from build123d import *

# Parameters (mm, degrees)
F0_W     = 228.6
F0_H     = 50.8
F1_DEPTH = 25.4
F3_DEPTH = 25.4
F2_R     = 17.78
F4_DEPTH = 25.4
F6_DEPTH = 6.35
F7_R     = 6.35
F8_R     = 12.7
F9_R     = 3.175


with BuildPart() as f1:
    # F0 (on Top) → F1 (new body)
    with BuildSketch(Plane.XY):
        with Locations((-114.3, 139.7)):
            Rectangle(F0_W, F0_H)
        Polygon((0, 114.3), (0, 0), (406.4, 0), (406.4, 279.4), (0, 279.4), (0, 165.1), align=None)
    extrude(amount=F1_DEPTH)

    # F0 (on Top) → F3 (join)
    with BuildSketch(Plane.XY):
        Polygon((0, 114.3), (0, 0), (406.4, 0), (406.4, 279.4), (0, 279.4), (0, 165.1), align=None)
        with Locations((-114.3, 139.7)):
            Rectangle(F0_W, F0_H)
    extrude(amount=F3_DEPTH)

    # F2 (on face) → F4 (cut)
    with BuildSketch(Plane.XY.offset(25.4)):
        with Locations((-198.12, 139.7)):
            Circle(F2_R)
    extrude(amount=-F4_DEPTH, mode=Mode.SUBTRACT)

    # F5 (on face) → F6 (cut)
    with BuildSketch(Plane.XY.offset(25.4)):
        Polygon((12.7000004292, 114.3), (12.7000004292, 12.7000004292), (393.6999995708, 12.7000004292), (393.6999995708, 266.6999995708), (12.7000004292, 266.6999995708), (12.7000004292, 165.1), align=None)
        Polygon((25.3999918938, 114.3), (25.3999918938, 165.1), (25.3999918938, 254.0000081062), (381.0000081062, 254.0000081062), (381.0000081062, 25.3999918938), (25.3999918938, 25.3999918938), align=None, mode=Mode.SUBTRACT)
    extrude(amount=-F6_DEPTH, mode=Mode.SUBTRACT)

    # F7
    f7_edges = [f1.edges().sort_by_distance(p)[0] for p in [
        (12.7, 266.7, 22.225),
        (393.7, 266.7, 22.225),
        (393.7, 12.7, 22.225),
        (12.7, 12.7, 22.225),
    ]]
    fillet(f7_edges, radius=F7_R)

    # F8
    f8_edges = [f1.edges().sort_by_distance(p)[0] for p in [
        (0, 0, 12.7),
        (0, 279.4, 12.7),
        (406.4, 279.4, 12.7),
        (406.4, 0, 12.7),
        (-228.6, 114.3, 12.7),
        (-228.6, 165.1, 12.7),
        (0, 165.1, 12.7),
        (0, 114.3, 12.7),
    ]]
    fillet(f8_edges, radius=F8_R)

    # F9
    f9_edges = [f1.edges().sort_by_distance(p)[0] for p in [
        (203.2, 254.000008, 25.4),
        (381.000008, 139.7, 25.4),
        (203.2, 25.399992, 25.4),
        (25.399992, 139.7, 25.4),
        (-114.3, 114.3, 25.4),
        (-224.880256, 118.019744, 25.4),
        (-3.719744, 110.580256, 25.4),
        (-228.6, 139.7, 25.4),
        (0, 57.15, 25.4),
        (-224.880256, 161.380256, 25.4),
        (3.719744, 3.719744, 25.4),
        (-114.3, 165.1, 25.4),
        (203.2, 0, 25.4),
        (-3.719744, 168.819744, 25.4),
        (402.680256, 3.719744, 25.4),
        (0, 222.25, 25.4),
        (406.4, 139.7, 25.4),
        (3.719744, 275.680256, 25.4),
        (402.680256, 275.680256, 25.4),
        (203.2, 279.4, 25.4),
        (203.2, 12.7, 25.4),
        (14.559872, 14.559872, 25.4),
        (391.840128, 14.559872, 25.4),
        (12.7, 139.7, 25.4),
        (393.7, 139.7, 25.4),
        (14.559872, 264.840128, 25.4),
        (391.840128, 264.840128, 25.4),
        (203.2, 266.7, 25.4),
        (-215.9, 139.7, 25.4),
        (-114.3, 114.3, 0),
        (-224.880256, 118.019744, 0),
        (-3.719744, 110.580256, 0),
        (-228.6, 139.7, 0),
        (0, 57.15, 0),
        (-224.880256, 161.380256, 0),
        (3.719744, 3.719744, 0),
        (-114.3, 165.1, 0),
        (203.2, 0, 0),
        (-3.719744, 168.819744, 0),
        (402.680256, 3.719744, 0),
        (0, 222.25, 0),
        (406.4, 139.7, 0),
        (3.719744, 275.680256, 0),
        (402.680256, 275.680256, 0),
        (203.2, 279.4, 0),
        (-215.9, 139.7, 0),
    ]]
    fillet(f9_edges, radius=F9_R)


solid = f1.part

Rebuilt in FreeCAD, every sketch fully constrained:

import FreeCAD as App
import Part
import Sketcher
from FreeCAD import Vector
Q = App.Units.Quantity


def edges_at(feature, points):
    """Names of the edges that pass closest to the given points."""
    edges = feature.Shape.Edges
    near = lambda p: min(range(len(edges)), key=lambda i: edges[i].distToShape(Part.Vertex(*p))[0])
    return sorted({f"Edge{near(p) + 1}" for p in points})

doc = App.newDocument("Part")
body = doc.addObject("PartDesign::Body", "Body")

sketch1 = body.newObject("Sketcher::SketchObject", "Sketch")
sketch1.AttachmentSupport = (doc.getObject("XY_Plane"), [""])
sketch1.MapMode = "FlatFace"
sketch1.addGeometry([
    Part.LineSegment(Vector(-229, 165, 0), Vector(-229, 114, 0)),
    Part.LineSegment(Vector(-229, 114, 0), Vector(0, 114, 0)),
    Part.LineSegment(Vector(0, 114, 0), Vector(0, 0, 0)),
    Part.LineSegment(Vector(0, 0, 0), Vector(406, 0, 0)),
    Part.LineSegment(Vector(406, 0, 0), Vector(406, 279, 0)),
    Part.LineSegment(Vector(406, 279, 0), Vector(0, 279, 0)),
    Part.LineSegment(Vector(0, 279, 0), Vector(0, 165, 0)),
    Part.LineSegment(Vector(0, 165, 0), Vector(-229, 165, 0)),
], False)
sketch1.addConstraint([
    Sketcher.Constraint("Coincident", 0, 2, 1, 1),
    Sketcher.Constraint("Coincident", 1, 2, 2, 1),
    Sketcher.Constraint("Coincident", 2, 2, 3, 1),
    Sketcher.Constraint("Coincident", 3, 2, 4, 1),
    Sketcher.Constraint("Coincident", 4, 2, 5, 1),
    Sketcher.Constraint("Coincident", 5, 2, 6, 1),
    Sketcher.Constraint("Coincident", 6, 2, 7, 1),
    Sketcher.Constraint("Coincident", 7, 2, 0, 1),
    Sketcher.Constraint("Vertical", 0),
    Sketcher.Constraint("Horizontal", 1),
    Sketcher.Constraint("Vertical", 2),
    Sketcher.Constraint("Horizontal", 3),
    Sketcher.Constraint("Vertical", 4),
    Sketcher.Constraint("Horizontal", 5),
    Sketcher.Constraint("Vertical", 6),
    Sketcher.Constraint("Horizontal", 7),
    Sketcher.Constraint("Coincident", 2, 2, -1, 1),
    Sketcher.Constraint("PointOnObject", 5, 2, -2),
    Sketcher.Constraint("Equal", 2, 6),
    Sketcher.Constraint("DistanceX", 1, 1, 1, 2, Q("9 in")),
    Sketcher.Constraint("DistanceX", 3, 1, 3, 2, Q("16 in")),
    Sketcher.Constraint("DistanceY", 0, 2, 0, 1, Q("2 in")),
    Sketcher.Constraint("DistanceY", 4, 1, 4, 2, Q("11 in")),
])
pad1 = body.newObject("PartDesign::Pad", "Pad")
pad1.Profile = sketch1
pad1.Length = Q("1 in")

sketch2 = body.newObject("Sketcher::SketchObject", "Sketch001")
sketch2.AttachmentSupport = (doc.getObject("XY_Plane"), [""])
sketch2.MapMode = "FlatFace"
sketch2.addGeometry([
    Part.LineSegment(Vector(0, 0, 0), Vector(406, 0, 0)),
    Part.LineSegment(Vector(406, 0, 0), Vector(406, 279, 0)),
    Part.LineSegment(Vector(406, 279, 0), Vector(0, 279, 0)),
    Part.LineSegment(Vector(0, 279, 0), Vector(0, 165, 0)),
    Part.LineSegment(Vector(0, 165, 0), Vector(-229, 165, 0)),
    Part.LineSegment(Vector(-229, 165, 0), Vector(-229, 114, 0)),
    Part.LineSegment(Vector(-229, 114, 0), Vector(0, 114, 0)),
    Part.LineSegment(Vector(0, 114, 0), Vector(0, 0, 0)),
], False)
sketch2.addConstraint([
    Sketcher.Constraint("Coincident", 0, 2, 1, 1),
    Sketcher.Constraint("Coincident", 1, 2, 2, 1),
    Sketcher.Constraint("Coincident", 2, 2, 3, 1),
    Sketcher.Constraint("Coincident", 3, 2, 4, 1),
    Sketcher.Constraint("Coincident", 4, 2, 5, 1),
    Sketcher.Constraint("Coincident", 5, 2, 6, 1),
    Sketcher.Constraint("Coincident", 6, 2, 7, 1),
    Sketcher.Constraint("Coincident", 7, 2, 0, 1),
    Sketcher.Constraint("Horizontal", 0),
    Sketcher.Constraint("Vertical", 1),
    Sketcher.Constraint("Horizontal", 2),
    Sketcher.Constraint("Vertical", 3),
    Sketcher.Constraint("Horizontal", 4),
    Sketcher.Constraint("Vertical", 5),
    Sketcher.Constraint("Horizontal", 6),
    Sketcher.Constraint("Vertical", 7),
    Sketcher.Constraint("Coincident", 7, 2, -1, 1),
    Sketcher.Constraint("PointOnObject", 2, 2, -2),
    Sketcher.Constraint("Equal", 3, 7),
    Sketcher.Constraint("DistanceX", 0, 1, 0, 2, Q("16 in")),
    Sketcher.Constraint("DistanceX", 4, 2, 4, 1, Q("9 in")),
    Sketcher.Constraint("DistanceY", 1, 1, 1, 2, Q("11 in")),
    Sketcher.Constraint("DistanceY", 5, 2, 5, 1, Q("2 in")),
])
pad2 = body.newObject("PartDesign::Pad", "Pad001")
pad2.Profile = sketch2
pad2.Length = Q("1 in")

sketch3 = body.newObject("Sketcher::SketchObject", "Sketch002")
sketch3.AttachmentSupport = (doc.getObject("XY_Plane"), [""])
sketch3.MapMode = "FlatFace"
sketch3.AttachmentOffset = App.Placement(Vector(0, 0, 1 * 25.4), App.Rotation())
sketch3.addGeometry(Part.Circle(Vector(-198, 140, 0), Vector(0, 0, 1), 18), False)
sketch3.addConstraint([
    Sketcher.Constraint("Diameter", 0, Q("1.4 in")),
    Sketcher.Constraint("DistanceX", 0, 3, -1, 1, Q("7.8 in")),
    Sketcher.Constraint("DistanceY", -1, 1, 0, 3, Q("5.5 in")),
])
pocket1 = body.newObject("PartDesign::Pocket", "Pocket")
pocket1.Profile = sketch3
pocket1.Length = Q("1 in")

sketch4 = body.newObject("Sketcher::SketchObject", "Sketch003")
sketch4.AttachmentSupport = (doc.getObject("XY_Plane"), [""])
sketch4.MapMode = "FlatFace"
sketch4.AttachmentOffset = App.Placement(Vector(0, 0, 1 * 25.4), App.Rotation())
sketch4.addGeometry([
    Part.LineSegment(Vector(13, 13, 0), Vector(394, 13, 0)),
    Part.LineSegment(Vector(394, 13, 0), Vector(394, 267, 0)),
    Part.LineSegment(Vector(394, 267, 0), Vector(13, 267, 0)),
    Part.LineSegment(Vector(13, 267, 0), Vector(13, 13, 0)),
    Part.LineSegment(Vector(25, 25, 0), Vector(25, 254, 0)),
    Part.LineSegment(Vector(25, 254, 0), Vector(381, 254, 0)),
    Part.LineSegment(Vector(381, 254, 0), Vector(381, 25, 0)),
    Part.LineSegment(Vector(381, 25, 0), Vector(25, 25, 0)),
], False)
sketch4.addConstraint([
    Sketcher.Constraint("Coincident", 0, 2, 1, 1),
    Sketcher.Constraint("Coincident", 1, 2, 2, 1),
    Sketcher.Constraint("Coincident", 2, 2, 3, 1),
    Sketcher.Constraint("Coincident", 3, 2, 0, 1),
    Sketcher.Constraint("Coincident", 4, 2, 5, 1),
    Sketcher.Constraint("Coincident", 5, 2, 6, 1),
    Sketcher.Constraint("Coincident", 6, 2, 7, 1),
    Sketcher.Constraint("Coincident", 7, 2, 4, 1),
    Sketcher.Constraint("Horizontal", 0),
    Sketcher.Constraint("Vertical", 1),
    Sketcher.Constraint("Horizontal", 2),
    Sketcher.Constraint("Vertical", 3),
    Sketcher.Constraint("Vertical", 4),
    Sketcher.Constraint("Horizontal", 5),
    Sketcher.Constraint("Vertical", 6),
    Sketcher.Constraint("Horizontal", 7),
    Sketcher.Constraint("DistanceX", 0, 1, 0, 2, Q("15 in")),
    Sketcher.Constraint("DistanceY", 1, 1, 1, 2, Q("10 in")),
    Sketcher.Constraint("DistanceX", -1, 1, 0, 2, Q("15.5 in")),
    Sketcher.Constraint("DistanceY", -1, 1, 0, 2, Q("0.5 in")),
    Sketcher.Constraint("DistanceX", 5, 1, 5, 2, Q("355.600016 mm")),
    Sketcher.Constraint("DistanceY", 4, 1, 4, 2, Q("228.600016 mm")),
    Sketcher.Constraint("DistanceX", -1, 1, 4, 2, Q("25.399992 mm")),
    Sketcher.Constraint("DistanceY", -1, 1, 4, 2, Q("254.000008 mm")),
])
pocket2 = body.newObject("PartDesign::Pocket", "Pocket001")
pocket2.Profile = sketch4
pocket2.Length = Q("0.25 in")
doc.recompute()

fillet = body.newObject("PartDesign::Fillet", "Fillet")
fillet.Base = (pocket2, edges_at(pocket2, [
    (12.7, 266.7, 22.225),
    (393.7, 266.7, 22.225),
    (393.7, 12.7, 22.225),
    (12.7, 12.7, 22.225),
]))
fillet.Radius = Q("0.25 in")
doc.recompute()

fillet2 = body.newObject("PartDesign::Fillet", "Fillet001")
fillet2.Base = (fillet, edges_at(fillet, [
    (0, 0, 12.7),
    (0, 279.4, 12.7),
    (406.4, 279.4, 12.7),
    (406.4, 0, 12.7),
    (-228.6, 114.3, 12.7),
    (-228.6, 165.1, 12.7),
    (0, 165.1, 12.7),
    (0, 114.3, 12.7),
]))
fillet2.Radius = Q("0.5 in")
doc.recompute()

fillet3 = body.newObject("PartDesign::Fillet", "Fillet002")
fillet3.Base = (fillet2, edges_at(fillet2, [
    (203.2, 254, 25.4),
    (381, 139.7, 25.4),
    (203.2, 25.4, 25.4),
    (25.4, 139.7, 25.4),
    (-114.3, 114.3, 25.4),
    (-224.88, 118.02, 25.4),
    (-3.72, 110.58, 25.4),
    (-228.6, 139.7, 25.4),
    (0, 57.15, 25.4),
    (-224.88, 161.38, 25.4),
    (3.72, 3.72, 25.4),
    (-114.3, 165.1, 25.4),
    (203.2, 0, 25.4),
    (-3.72, 168.82, 25.4),
    (402.68, 3.72, 25.4),
    (0, 222.25, 25.4),
    (406.4, 139.7, 25.4),
    (3.72, 275.68, 25.4),
    (402.68, 275.68, 25.4),
    (203.2, 279.4, 25.4),
    (203.2, 12.7, 25.4),
    (14.56, 14.56, 25.4),
    (391.84, 14.56, 25.4),
    (12.7, 139.7, 25.4),
    (393.7, 139.7, 25.4),
    (14.56, 264.84, 25.4),
    (391.84, 264.84, 25.4),
    (203.2, 266.7, 25.4),
    (-215.9, 139.7, 25.4),
    (-114.3, 114.3, 0),
    (-224.88, 118.02, 0),
    (-3.72, 110.58, 0),
    (-228.6, 139.7, 0),
    (0, 57.15, 0),
    (-224.88, 161.38, 0),
    (3.72, 3.72, 0),
    (-114.3, 165.1, 0),
    (203.2, 0, 0),
    (-3.72, 168.82, 0),
    (402.68, 3.72, 0),
    (0, 222.25, 0),
    (406.4, 139.7, 0),
    (3.72, 275.68, 0),
    (402.68, 275.68, 0),
    (203.2, 279.4, 0),
    (-215.9, 139.7, 0),
]))
fillet3.Radius = Q("0.125 in")

doc.recompute()
